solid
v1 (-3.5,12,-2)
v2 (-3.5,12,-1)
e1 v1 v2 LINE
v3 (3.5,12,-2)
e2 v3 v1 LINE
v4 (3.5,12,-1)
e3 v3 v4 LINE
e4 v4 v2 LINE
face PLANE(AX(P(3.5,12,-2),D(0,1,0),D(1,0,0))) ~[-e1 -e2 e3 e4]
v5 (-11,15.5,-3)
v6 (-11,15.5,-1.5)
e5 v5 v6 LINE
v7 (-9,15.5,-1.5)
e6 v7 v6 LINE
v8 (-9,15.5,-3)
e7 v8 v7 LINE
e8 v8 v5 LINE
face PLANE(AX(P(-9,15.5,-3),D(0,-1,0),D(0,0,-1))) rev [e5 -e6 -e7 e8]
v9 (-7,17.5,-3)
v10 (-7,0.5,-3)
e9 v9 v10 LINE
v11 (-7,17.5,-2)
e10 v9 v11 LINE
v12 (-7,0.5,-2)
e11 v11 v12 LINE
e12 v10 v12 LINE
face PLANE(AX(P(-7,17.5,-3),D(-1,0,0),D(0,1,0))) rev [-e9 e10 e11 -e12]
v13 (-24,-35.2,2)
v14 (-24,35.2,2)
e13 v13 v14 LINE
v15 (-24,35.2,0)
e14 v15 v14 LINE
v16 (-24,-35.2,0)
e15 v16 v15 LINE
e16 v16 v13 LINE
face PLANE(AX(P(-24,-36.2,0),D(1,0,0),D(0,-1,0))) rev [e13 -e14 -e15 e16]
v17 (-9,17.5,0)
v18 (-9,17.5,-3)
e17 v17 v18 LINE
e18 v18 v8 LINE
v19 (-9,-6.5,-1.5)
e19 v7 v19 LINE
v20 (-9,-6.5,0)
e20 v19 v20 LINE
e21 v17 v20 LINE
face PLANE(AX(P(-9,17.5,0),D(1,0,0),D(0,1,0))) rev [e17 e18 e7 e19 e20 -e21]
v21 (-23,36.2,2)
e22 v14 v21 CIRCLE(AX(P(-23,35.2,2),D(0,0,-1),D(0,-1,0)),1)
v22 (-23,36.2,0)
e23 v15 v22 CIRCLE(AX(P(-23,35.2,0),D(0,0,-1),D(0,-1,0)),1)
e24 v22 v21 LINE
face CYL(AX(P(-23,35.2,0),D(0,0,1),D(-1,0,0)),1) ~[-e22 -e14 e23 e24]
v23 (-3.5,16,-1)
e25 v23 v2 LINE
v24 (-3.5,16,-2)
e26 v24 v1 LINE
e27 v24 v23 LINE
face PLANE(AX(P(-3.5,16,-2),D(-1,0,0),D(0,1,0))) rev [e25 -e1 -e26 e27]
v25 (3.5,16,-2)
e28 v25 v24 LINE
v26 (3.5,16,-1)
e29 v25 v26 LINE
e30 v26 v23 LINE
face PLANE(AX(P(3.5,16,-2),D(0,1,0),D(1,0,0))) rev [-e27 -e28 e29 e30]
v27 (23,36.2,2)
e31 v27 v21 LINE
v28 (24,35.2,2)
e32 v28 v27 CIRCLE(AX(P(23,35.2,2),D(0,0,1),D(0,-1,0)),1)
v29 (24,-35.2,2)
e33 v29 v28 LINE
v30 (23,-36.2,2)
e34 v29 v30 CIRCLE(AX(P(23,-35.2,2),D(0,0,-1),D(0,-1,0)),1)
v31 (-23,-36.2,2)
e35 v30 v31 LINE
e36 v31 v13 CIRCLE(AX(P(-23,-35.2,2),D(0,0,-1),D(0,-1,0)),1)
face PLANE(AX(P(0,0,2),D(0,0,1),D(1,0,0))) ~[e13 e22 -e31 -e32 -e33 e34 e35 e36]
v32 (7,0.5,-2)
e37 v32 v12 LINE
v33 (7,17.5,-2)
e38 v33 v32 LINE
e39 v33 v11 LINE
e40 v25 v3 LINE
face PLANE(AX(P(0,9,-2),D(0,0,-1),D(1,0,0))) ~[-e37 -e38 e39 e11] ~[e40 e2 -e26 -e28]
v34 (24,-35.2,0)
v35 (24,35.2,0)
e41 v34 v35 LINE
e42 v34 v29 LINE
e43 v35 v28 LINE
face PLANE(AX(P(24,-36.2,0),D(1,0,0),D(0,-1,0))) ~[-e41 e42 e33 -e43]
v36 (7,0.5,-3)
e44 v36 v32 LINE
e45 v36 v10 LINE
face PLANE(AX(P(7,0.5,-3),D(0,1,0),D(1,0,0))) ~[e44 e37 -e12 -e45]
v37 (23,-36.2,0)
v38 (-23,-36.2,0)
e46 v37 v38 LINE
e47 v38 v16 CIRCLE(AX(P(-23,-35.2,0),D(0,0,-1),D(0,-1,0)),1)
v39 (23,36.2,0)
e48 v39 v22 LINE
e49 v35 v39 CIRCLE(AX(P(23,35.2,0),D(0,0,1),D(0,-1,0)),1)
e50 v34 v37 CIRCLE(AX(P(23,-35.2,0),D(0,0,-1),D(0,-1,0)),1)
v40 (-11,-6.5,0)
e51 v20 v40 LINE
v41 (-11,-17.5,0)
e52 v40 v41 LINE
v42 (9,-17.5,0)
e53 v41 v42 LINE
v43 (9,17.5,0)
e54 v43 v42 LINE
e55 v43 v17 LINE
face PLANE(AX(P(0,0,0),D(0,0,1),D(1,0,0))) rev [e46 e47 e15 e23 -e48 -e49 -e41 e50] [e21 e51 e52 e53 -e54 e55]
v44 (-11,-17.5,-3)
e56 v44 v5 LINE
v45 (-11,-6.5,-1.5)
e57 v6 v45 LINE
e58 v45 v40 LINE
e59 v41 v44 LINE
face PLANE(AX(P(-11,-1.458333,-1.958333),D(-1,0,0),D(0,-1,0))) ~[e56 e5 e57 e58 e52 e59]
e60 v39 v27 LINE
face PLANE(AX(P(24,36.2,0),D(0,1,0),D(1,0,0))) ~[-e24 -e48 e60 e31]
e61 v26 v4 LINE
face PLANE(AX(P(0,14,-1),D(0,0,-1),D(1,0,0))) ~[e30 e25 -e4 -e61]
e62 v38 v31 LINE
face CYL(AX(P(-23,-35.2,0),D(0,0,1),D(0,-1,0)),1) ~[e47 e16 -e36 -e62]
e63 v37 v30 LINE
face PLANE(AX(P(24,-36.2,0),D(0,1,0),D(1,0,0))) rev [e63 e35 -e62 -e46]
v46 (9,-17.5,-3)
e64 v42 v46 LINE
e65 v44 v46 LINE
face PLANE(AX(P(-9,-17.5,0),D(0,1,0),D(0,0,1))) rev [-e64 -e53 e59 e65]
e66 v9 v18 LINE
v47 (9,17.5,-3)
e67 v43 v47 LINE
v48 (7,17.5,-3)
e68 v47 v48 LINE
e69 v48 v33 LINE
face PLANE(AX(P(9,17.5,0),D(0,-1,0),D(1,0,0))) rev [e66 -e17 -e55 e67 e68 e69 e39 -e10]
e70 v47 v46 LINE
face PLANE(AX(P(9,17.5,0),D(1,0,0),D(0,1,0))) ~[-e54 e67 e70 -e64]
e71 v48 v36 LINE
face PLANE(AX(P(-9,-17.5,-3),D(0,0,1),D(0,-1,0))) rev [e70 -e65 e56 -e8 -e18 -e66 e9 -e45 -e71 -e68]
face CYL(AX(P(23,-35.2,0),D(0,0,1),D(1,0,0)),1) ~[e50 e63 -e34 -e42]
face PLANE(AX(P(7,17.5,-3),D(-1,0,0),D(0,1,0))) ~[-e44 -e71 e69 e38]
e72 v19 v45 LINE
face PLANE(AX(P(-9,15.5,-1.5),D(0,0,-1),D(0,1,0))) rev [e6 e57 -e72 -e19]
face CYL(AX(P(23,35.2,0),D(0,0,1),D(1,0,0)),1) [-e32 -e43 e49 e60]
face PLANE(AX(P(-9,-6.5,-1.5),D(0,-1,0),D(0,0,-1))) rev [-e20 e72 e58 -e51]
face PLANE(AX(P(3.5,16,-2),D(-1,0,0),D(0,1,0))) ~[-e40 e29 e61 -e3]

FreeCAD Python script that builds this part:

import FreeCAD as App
import Part
import Sketcher


def edges_at(feature, points):
    """Names of the edges that pass closest to the given points."""
    edges = feature.Shape.Edges
    near = lambda p: min(range(len(edges)), key=lambda i: edges[i].distToShape(Part.Vertex(*p))[0])
    return sorted({f"Edge{near(p) + 1}" for p in points})


def add_polygon(sketch, points):
    """Adds a closed chain of lines whose ends are joined by coincident constraints."""
    first, n = sketch.GeometryCount, len(points)
    for a, b in zip(points, points[1:] + points[:1]):
        sketch.addGeometry(Part.LineSegment(App.Vector(*a, 0), App.Vector(*b, 0)), False)
    for i in range(n):
        sketch.addConstraint(Sketcher.Constraint("Coincident", first + i, 2, first + (i + 1) % n, 1))

doc = App.newDocument("Part")
params = doc.addObject("Spreadsheet::Sheet", "Params")
for row, (alias, value) in enumerate([
    ("sketch1_width", "48 mm"),
    ("sketch1_height", "72.4 mm"),
    ("pad1_length", "2 mm"),
    ("fillet_radius", "1 mm"),
    ("sketch2_width", "18 mm"),
    ("sketch2_height", "35 mm"),
    ("pad2_length", "3 mm"),
    ("sketch3_width", "14 mm"),
    ("sketch3_height", "17 mm"),
    ("pocket1_length", "1 mm"),
    ("sketch4_width", "7 mm"),
    ("sketch4_height", "4 mm"),
    ("pocket2_length", "1 mm"),
    ("sketch5_width", "22 mm"),
    ("sketch5_width2", "11 mm"),
    ("sketch5_height", "3 mm"),
    ("pad3_length", "2 mm"),
], start=1):
    params.set(f"A{row}", alias)
    params.set(f"B{row}", "=" + value)
    params.setAlias(f"B{row}", alias)

body = doc.addObject("PartDesign::Body", "Body")

# Sketch on XY plane
sketch1 = body.newObject("Sketcher::SketchObject", "Sketch")
sketch1.AttachmentSupport = (doc.getObject("XY_Plane"), [""])
sketch1.MapMode = "FlatFace"
add_polygon(sketch1, [(-24, 36), (-24, -36), (24, -36), (24, 36)])  # lines 0-3
sketch1.addConstraint([
    Sketcher.Constraint("Vertical", 0),
    Sketcher.Constraint("Horizontal", 1),
    Sketcher.Constraint("Vertical", 2),
    Sketcher.Constraint("Horizontal", 3),
    Sketcher.Constraint("Symmetric", 0, 2, 2, 2, -1, 1),
    Sketcher.Constraint("DistanceX", 1, 1, 1, 2, 48.0),
    Sketcher.Constraint("DistanceY", 0, 2, 0, 1, 72.4),
])
sketch1.setExpression("Constraints[9]", "Params.sketch1_width")
sketch1.setExpression("Constraints[10]", "Params.sketch1_height")
pad1 = body.newObject("PartDesign::Pad", "Pad")
pad1.Profile = sketch1
pad1.setExpression("Length", "Params.pad1_length")
doc.recompute()

fillet = body.newObject("PartDesign::Fillet", "Fillet")
fillet.Base = (pad1, edges_at(pad1, [
    (-24, 36.2, 1),
    (24, 36.2, 1),
    (24, -36.2, 1),
    (-24, -36.2, 1),
]))
fillet.setExpression("Radius", "Params.fillet_radius")

# Sketch on XY plane
sketch2 = body.newObject("Sketcher::SketchObject", "Sketch001")
sketch2.AttachmentSupport = (doc.getObject("XY_Plane"), [""])
sketch2.MapMode = "FlatFace"
add_polygon(sketch2, [(-9, -18), (-9, 18), (9, 18), (9, -18)])  # lines 0-3
sketch2.addConstraint([
    Sketcher.Constraint("Vertical", 0),
    Sketcher.Constraint("Horizontal", 1),
    Sketcher.Constraint("Vertical", 2),
    Sketcher.Constraint("Horizontal", 3),
    Sketcher.Constraint("Symmetric", 0, 2, 2, 2, -1, 1),
    Sketcher.Constraint("DistanceX", 1, 1, 1, 2, 18.0),
    Sketcher.Constraint("DistanceY", 0, 1, 0, 2, 35.0),
])
sketch2.setExpression("Constraints[9]", "Params.sketch2_width")
sketch2.setExpression("Constraints[10]", "Params.sketch2_height")
pad2 = body.newObject("PartDesign::Pad", "Pad001")
pad2.Profile = sketch2
pad2.setExpression("Length", "Params.pad2_length")
pad2.Reversed = True

# Sketch on XY plane
sketch3 = body.newObject("Sketcher::SketchObject", "Sketch002")
sketch3.AttachmentSupport = (doc.getObject("XY_Plane"), [""])
sketch3.MapMode = "FlatFace"
sketch3.AttachmentOffset = App.Placement(App.Vector(0, 0, -3), App.Rotation())
add_polygon(sketch3, [(-7, 0), (-7, 18), (7, 18), (7, 0)])  # lines 0-3
sketch3.addConstraint([
    Sketcher.Constraint("Vertical", 0),
    Sketcher.Constraint("Horizontal", 1),
    Sketcher.Constraint("Vertical", 2),
    Sketcher.Constraint("Horizontal", 3),
    Sketcher.Constraint("DistanceX", 1, 1, 1, 2, 14.0),
    Sketcher.Constraint("DistanceY", 0, 1, 0, 2, 17.0),
    Sketcher.Constraint("DistanceX", 0, 2, -1, 1, 7.0),
    Sketcher.Constraint("DistanceY", -1, 1, 0, 2, 17.5),
])
sketch3.setExpression("Constraints[8]", "Params.sketch3_width")
sketch3.setExpression("Constraints[9]", "Params.sketch3_height")
pocket1 = body.newObject("PartDesign::Pocket", "Pocket")
pocket1.Profile = sketch3
pocket1.setExpression("Length", "Params.pocket1_length")
pocket1.Reversed = True

# Sketch on XY plane
sketch4 = body.newObject("Sketcher::SketchObject", "Sketch003")
sketch4.AttachmentSupport = (doc.getObject("XY_Plane"), [""])
sketch4.MapMode = "FlatFace"
sketch4.AttachmentOffset = App.Placement(App.Vector(0, 0, -2), App.Rotation())
add_polygon(sketch4, [(-3.5, 12), (-3.5, 16), (3.5, 16), (3.5, 12)])  # lines 0-3
sketch4.addConstraint([
    Sketcher.Constraint("Vertical", 0),
    Sketcher.Constraint("Horizontal", 1),
    Sketcher.Constraint("Vertical", 2),
    Sketcher.Constraint("Horizontal", 3),
    Sketcher.Constraint("DistanceX", 1, 1, 1, 2, 7.0),
    Sketcher.Constraint("DistanceY", 0, 1, 0, 2, 4.0),
    Sketcher.Constraint("DistanceY", -1, 1, 0, 2, 16.0),
    Sketcher.Constraint("DistanceX", 0, 2, -1, 1, 3.5),
])
sketch4.setExpression("Constraints[8]", "Params.sketch4_width")
sketch4.setExpression("Constraints[9]", "Params.sketch4_height")
pocket2 = body.newObject("PartDesign::Pocket", "Pocket001")
pocket2.Profile = sketch4
pocket2.setExpression("Length", "Params.pocket2_length")
pocket2.Reversed = True

# Sketch on YZ plane
sketch5 = body.newObject("Sketcher::SketchObject", "Sketch004")
sketch5.AttachmentSupport = (doc.getObject("YZ_Plane"), [""])
sketch5.MapMode = "FlatFace"
sketch5.AttachmentOffset = App.Placement(App.Vector(0, 0, 9), App.Rotation())
add_polygon(sketch5, [(15.5, -3), (15.5, -1.5), (-6.5, -1.5), (-6.5, 0), (-17.5, 0), (-17.5, -3)])  # lines 0-5
sketch5.addConstraint([
    Sketcher.Constraint("Vertical", 0),
    Sketcher.Constraint("Horizontal", 1),
    Sketcher.Constraint("Vertical", 2),
    Sketcher.Constraint("Horizontal", 3),
    Sketcher.Constraint("Vertical", 4),
    Sketcher.Constraint("Horizontal", 5),
    Sketcher.Constraint("PointOnObject", 2, 2, -1),
    Sketcher.Constraint("Equal", 0, 2),
    Sketcher.Constraint("DistanceX", 1, 2, 1, 1, 22.0),
    Sketcher.Constraint("DistanceX", 3, 2, 3, 1, 11.0),
    Sketcher.Constraint("DistanceY", 4, 2, 4, 1, 3.0),
    Sketcher.Constraint("DistanceX", -1, 1, 0, 2, 15.5),
])
sketch5.setExpression("Constraints[14]", "Params.sketch5_width")
sketch5.setExpression("Constraints[15]", "Params.sketch5_width2")
sketch5.setExpression("Constraints[16]", "Params.sketch5_height")
pad3 = body.newObject("PartDesign::Pad", "Pad002")
pad3.Profile = sketch5
pad3.setExpression("Length", "Params.pad3_length")
body2 = doc.addObject("PartDesign::Body", "Body001")
doc.recompute()

mirroring = doc.addObject("Part::Mirroring", "Mirroring")
mirroring.Source = body
mirroring.Base = App.Vector(0, 0, 0)
mirroring.Normal = App.Vector(1, 0, 0)
body2.BaseFeature = mirroring
doc.recompute()
body.Visibility = False
mirroring.Visibility = False

doc.recompute()
